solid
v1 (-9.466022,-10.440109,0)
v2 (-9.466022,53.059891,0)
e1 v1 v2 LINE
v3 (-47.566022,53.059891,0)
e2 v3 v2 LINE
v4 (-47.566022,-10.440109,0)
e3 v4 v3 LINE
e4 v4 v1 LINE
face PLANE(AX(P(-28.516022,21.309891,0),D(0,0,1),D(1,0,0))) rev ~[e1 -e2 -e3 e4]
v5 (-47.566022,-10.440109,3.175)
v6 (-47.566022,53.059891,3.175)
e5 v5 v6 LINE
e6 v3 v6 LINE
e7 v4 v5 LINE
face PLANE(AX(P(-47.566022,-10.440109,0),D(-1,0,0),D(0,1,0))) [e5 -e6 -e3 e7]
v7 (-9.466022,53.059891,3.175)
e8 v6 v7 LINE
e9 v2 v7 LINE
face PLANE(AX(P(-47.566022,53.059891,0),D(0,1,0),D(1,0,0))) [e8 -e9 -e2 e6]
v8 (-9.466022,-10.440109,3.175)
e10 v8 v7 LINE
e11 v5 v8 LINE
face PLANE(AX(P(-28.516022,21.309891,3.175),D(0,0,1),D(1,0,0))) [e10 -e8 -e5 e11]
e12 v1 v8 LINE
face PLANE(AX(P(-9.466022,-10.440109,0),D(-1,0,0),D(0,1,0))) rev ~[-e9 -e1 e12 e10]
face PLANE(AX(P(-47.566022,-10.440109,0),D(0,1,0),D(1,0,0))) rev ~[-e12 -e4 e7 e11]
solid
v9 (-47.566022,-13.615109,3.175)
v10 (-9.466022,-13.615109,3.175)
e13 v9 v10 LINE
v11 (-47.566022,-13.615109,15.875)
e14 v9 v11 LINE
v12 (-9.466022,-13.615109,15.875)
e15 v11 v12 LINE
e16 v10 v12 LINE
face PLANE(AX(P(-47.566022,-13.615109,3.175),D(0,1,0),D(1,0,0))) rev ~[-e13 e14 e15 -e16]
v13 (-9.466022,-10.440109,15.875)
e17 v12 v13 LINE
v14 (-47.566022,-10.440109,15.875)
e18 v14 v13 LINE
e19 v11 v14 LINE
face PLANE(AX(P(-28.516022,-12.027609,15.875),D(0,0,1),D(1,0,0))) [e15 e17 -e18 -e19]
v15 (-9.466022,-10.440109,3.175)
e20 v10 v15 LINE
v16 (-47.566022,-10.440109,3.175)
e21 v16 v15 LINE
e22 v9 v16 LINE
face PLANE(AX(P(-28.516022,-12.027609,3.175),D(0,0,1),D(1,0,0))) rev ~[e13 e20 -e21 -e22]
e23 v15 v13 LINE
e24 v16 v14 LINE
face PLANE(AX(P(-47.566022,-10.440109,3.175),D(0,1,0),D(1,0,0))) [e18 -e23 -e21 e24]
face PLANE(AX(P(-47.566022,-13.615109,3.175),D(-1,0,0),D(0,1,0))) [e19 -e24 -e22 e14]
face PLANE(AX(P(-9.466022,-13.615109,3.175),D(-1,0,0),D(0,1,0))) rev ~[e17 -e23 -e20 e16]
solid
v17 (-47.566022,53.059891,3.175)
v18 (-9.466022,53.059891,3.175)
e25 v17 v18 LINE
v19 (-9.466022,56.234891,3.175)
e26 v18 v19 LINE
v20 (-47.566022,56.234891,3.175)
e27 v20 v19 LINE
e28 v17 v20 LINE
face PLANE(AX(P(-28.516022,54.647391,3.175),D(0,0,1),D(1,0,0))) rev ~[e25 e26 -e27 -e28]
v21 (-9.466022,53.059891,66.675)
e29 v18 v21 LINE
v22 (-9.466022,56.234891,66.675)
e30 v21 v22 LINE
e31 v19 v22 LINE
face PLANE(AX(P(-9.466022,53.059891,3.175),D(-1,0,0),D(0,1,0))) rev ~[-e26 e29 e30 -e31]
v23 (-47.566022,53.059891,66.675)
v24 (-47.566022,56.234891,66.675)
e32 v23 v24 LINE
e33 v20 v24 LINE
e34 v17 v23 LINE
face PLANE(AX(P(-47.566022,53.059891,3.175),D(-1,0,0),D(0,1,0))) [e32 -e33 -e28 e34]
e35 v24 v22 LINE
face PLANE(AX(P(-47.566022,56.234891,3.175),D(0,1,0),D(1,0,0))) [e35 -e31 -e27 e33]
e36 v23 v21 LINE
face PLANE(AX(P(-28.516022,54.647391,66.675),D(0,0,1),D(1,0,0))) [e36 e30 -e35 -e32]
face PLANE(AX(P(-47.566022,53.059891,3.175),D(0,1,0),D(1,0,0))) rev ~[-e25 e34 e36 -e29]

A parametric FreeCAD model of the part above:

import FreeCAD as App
import Part
import Sketcher
Q = App.Units.Quantity


def add_polygon(sketch, points):
    """Adds a closed chain of lines whose ends are joined by coincident constraints."""
    first, n = sketch.GeometryCount, len(points)
    for a, b in zip(points, points[1:] + points[:1]):
        sketch.addGeometry(Part.LineSegment(App.Vector(*a, 0), App.Vector(*b, 0)), False)
    for i in range(n):
        sketch.addConstraint(Sketcher.Constraint("Coincident", first + i, 2, first + (i + 1) % n, 1))

doc = App.newDocument("Part")
params = doc.addObject("Spreadsheet::Sheet", "Params")
for row, (alias, value) in enumerate([
    ("sketch1_width", "1.5 in"),
    ("sketch1_height", "2.5 in"),
    ("pad1_length", "0.125 in"),
    ("sketch2_width", "1.5 in"),
    ("sketch2_height", "0.125 in"),
    ("pad2_length", "2.5 in"),
    ("sketch3_width", "1.5 in"),
    ("sketch3_height", "0.125 in"),
    ("pad3_length", "0.5 in"),
], start=1):
    params.set(f"A{row}", alias)
    params.set(f"B{row}", "=" + value)
    params.setAlias(f"B{row}", alias)

body = doc.addObject("PartDesign::Body", "Body")

# Sketch on XY plane
sketch1 = doc.addObject("Sketcher::SketchObject", "Sketch")
body.addObject(sketch1)
sketch1.AttachmentSupport = (doc.XY_Plane, [""])
sketch1.MapMode = "FlatFace"
add_polygon(sketch1, [(-48, 53), (-48, -10), (-9, -10), (-9, 53)])  # lines 0-3
sketch1.addConstraint(Sketcher.Constraint("Vertical", 0))
sketch1.addConstraint(Sketcher.Constraint("Horizontal", 1))
sketch1.addConstraint(Sketcher.Constraint("Vertical", 2))
sketch1.addConstraint(Sketcher.Constraint("Horizontal", 3))
sketch1.addConstraint(Sketcher.Constraint("DistanceX", 1, 1, 1, 2, Q("1.5 in")))
sketch1.addConstraint(Sketcher.Constraint("DistanceY", 0, 2, 0, 1, Q("2.5 in")))
sketch1.addConstraint(Sketcher.Constraint("DistanceX", 0, 2, -1, 1, 47.566022))
sketch1.addConstraint(Sketcher.Constraint("DistanceY", 0, 2, -1, 1, 10.440109))
sketch1.setExpression("Constraints[8]", "Params.sketch1_width")
sketch1.setExpression("Constraints[9]", "Params.sketch1_height")
pad1 = doc.addObject("PartDesign::Pad", "Pad")
body.addObject(pad1)
pad1.Profile = sketch1
pad1.setExpression("Length", "Params.pad1_length")
body2 = doc.addObject("PartDesign::Body", "Body001")

# Sketch on XY plane
sketch2 = doc.addObject("Sketcher::SketchObject", "Sketch001")
body2.addObject(sketch2)
sketch2.AttachmentSupport = (doc.getObject("XY_Plane001"), [""])
sketch2.MapMode = "FlatFace"
sketch2.AttachmentOffset = App.Placement(App.Vector(0, 0, 0.125 * 25.4), App.Rotation())
add_polygon(sketch2, [(-47.6, 56.2), (-47.6, 53.1), (-9.5, 53.1), (-9.5, 56.2)])  # lines 0-3
sketch2.addConstraint(Sketcher.Constraint("Vertical", 0))
sketch2.addConstraint(Sketcher.Constraint("Horizontal", 1))
sketch2.addConstraint(Sketcher.Constraint("Vertical", 2))
sketch2.addConstraint(Sketcher.Constraint("Horizontal", 3))
sketch2.addConstraint(Sketcher.Constraint("DistanceX", 1, 1, 1, 2, Q("1.5 in")))
sketch2.addConstraint(Sketcher.Constraint("DistanceY", 0, 2, 0, 1, Q("0.125 in")))
sketch2.addConstraint(Sketcher.Constraint("DistanceX", 0, 2, -1, 1, 47.566022))
sketch2.addConstraint(Sketcher.Constraint("DistanceY", -1, 1, 0, 2, 53.059891))
sketch2.setExpression("Constraints[8]", "Params.sketch2_width")
sketch2.setExpression("Constraints[9]", "Params.sketch2_height")
pad2 = doc.addObject("PartDesign::Pad", "Pad001")
body2.addObject(pad2)
pad2.Profile = sketch2
pad2.setExpression("Length", "Params.pad2_length")
body3 = doc.addObject("PartDesign::Body", "Body002")

# Sketch on XY plane
sketch3 = doc.addObject("Sketcher::SketchObject", "Sketch002")
body3.addObject(sketch3)
sketch3.AttachmentSupport = (doc.getObject("XY_Plane002"), [""])
sketch3.MapMode = "FlatFace"
sketch3.AttachmentOffset = App.Placement(App.Vector(0, 0, 0.125 * 25.4), App.Rotation())
add_polygon(sketch3, [(-47.6, -10.4), (-47.6, -13.6), (-9.5, -13.6), (-9.5, -10.4)])  # lines 0-3
sketch3.addConstraint(Sketcher.Constraint("Vertical", 0))
sketch3.addConstraint(Sketcher.Constraint("Horizontal", 1))
sketch3.addConstraint(Sketcher.Constraint("Vertical", 2))
sketch3.addConstraint(Sketcher.Constraint("Horizontal", 3))
sketch3.addConstraint(Sketcher.Constraint("DistanceX", 1, 1, 1, 2, Q("1.5 in")))
sketch3.addConstraint(Sketcher.Constraint("DistanceY", 0, 2, 0, 1, Q("0.125 in")))
sketch3.addConstraint(Sketcher.Constraint("DistanceX", 0, 2, -1, 1, 47.566022))
sketch3.addConstraint(Sketcher.Constraint("DistanceY", 0, 2, -1, 1, 13.615109))
sketch3.setExpression("Constraints[8]", "Params.sketch3_width")
sketch3.setExpression("Constraints[9]", "Params.sketch3_height")
pad3 = doc.addObject("PartDesign::Pad", "Pad002")
body3.addObject(pad3)
pad3.Profile = sketch3
pad3.setExpression("Length", "Params.pad3_length")

doc.recompute()
